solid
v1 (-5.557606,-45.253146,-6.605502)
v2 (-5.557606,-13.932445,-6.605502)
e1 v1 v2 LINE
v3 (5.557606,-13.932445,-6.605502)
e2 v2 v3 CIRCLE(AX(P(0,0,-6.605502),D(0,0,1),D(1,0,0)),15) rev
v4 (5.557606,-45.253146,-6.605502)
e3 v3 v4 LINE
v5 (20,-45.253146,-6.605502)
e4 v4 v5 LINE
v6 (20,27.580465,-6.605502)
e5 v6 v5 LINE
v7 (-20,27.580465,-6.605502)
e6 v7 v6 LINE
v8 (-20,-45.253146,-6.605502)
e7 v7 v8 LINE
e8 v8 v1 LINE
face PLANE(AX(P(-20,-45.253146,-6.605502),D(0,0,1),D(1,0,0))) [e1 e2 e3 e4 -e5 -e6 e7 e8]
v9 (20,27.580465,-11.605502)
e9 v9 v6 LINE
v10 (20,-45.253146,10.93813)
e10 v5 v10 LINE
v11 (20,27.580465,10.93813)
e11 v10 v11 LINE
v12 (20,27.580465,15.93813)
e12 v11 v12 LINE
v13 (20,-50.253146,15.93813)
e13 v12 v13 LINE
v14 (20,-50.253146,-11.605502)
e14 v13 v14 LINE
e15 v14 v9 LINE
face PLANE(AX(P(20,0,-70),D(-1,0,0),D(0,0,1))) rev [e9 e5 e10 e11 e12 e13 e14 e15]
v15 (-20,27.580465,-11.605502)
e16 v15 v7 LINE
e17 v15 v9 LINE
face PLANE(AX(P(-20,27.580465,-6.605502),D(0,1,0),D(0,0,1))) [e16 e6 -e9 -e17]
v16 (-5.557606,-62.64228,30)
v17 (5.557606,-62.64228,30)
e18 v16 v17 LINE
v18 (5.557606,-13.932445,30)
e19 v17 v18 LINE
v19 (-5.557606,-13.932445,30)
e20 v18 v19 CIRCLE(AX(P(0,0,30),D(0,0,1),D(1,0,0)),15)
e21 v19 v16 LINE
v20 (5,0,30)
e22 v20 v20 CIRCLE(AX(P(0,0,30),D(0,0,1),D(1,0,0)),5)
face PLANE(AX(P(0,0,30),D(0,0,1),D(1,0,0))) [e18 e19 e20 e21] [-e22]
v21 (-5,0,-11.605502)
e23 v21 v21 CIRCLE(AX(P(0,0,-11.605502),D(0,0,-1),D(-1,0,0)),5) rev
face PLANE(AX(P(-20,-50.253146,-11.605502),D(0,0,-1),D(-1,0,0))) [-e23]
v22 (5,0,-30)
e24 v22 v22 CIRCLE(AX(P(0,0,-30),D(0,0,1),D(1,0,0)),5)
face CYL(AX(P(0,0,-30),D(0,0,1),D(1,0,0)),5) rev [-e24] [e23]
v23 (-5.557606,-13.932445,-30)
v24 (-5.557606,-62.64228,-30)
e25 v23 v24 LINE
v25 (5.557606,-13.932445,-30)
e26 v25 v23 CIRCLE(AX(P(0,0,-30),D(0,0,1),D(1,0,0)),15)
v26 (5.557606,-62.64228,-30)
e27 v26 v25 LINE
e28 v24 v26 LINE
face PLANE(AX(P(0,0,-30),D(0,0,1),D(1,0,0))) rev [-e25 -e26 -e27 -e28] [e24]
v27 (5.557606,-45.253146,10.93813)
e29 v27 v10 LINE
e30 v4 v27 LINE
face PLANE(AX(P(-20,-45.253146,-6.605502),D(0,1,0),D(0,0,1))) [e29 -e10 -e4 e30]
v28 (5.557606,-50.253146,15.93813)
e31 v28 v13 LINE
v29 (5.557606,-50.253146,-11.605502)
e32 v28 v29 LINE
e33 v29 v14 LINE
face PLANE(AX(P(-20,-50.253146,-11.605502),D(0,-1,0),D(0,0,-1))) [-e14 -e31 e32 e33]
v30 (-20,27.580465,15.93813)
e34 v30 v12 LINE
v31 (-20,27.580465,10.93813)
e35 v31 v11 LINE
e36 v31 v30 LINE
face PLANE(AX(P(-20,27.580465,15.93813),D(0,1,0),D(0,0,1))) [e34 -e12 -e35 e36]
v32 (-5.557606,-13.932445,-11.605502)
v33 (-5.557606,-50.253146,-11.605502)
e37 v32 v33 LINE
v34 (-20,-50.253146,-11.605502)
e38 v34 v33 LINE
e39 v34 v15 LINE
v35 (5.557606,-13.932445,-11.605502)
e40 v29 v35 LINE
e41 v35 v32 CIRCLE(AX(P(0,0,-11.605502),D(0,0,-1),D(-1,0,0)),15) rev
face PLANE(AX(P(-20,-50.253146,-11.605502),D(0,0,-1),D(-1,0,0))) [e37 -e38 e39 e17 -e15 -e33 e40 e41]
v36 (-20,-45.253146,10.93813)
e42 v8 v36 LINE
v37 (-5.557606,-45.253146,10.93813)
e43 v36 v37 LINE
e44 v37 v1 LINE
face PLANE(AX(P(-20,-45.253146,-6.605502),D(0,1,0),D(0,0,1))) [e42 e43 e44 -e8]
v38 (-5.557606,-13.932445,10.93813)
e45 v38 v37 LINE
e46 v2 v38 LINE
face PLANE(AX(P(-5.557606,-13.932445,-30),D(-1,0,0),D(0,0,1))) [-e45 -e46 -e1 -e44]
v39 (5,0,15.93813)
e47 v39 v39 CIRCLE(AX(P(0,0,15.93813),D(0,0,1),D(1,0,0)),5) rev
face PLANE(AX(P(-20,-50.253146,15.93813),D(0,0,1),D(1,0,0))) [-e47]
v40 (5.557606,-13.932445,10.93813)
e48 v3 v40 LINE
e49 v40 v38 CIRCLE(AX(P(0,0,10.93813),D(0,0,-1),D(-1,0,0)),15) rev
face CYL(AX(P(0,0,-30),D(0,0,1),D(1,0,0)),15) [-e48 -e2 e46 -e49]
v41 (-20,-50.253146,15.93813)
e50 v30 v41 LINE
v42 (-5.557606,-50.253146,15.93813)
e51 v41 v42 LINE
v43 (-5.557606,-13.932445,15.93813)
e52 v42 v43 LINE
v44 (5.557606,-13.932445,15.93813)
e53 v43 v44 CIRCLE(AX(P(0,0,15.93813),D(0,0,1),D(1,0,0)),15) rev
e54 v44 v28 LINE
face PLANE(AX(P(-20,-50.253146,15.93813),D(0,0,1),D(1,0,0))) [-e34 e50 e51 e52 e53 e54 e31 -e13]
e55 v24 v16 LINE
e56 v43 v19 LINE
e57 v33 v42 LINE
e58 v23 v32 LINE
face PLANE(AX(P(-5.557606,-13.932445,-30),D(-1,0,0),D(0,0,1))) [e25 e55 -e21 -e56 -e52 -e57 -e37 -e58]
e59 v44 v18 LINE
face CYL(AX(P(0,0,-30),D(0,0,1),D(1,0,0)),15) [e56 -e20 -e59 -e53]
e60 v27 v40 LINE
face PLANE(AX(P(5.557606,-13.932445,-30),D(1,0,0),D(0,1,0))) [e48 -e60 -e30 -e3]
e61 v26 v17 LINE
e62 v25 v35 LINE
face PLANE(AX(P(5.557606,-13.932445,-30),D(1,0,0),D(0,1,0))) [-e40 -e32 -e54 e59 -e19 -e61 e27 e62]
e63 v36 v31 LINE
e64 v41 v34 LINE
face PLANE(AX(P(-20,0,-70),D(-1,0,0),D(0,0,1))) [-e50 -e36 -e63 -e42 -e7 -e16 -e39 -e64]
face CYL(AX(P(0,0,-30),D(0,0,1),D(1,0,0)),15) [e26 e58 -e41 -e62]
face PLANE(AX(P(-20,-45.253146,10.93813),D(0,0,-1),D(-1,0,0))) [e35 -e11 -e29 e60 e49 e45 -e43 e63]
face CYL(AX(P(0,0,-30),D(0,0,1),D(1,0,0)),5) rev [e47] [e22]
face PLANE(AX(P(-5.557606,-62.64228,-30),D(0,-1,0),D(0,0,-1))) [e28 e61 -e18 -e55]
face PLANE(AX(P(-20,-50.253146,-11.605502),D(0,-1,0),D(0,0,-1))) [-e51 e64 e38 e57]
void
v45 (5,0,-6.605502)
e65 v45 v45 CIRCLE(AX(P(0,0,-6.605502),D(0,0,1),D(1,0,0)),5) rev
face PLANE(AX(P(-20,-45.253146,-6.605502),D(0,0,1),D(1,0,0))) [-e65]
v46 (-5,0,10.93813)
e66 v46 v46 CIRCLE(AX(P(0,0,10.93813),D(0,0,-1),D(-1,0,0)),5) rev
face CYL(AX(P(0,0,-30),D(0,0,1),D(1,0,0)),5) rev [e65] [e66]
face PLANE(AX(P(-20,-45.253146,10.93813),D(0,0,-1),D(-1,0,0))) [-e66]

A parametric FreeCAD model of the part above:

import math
import FreeCAD as App
import Part
import Sketcher

V = App.Vector

doc = App.newDocument("Part")
body = doc.addObject("PartDesign::Body", "Body")

# Sketch on XY plane
sketch1 = body.newObject("Sketcher::SketchObject", "Sketch")
sketch1.AttachmentSupport = (doc.getObject("XY_Plane"), [""])
sketch1.MapMode = "FlatFace"
sketch1.addGeometry([
    Part.LineSegment(V(-6, -14, 0), V(-6, -63, 0)),  # 0
    Part.LineSegment(V(-6, -63, 0), V(6, -63, 0)),  # 1
    Part.LineSegment(V(6, -63, 0), V(6, -14, 0)),  # 2
    Part.ArcOfCircle(Part.Circle(V(0, 0, 0), V(0, 0, 1), 15), math.radians(-68), math.radians(248)),  # 3
    Part.Circle(V(0, 0, 0), V(0, 0, 1), 5),  # 4
], False)
sketch1.addConstraint([
    Sketcher.Constraint("Coincident", 0, 2, 1, 1),
    Sketcher.Constraint("Coincident", 1, 2, 2, 1),
    Sketcher.Constraint("Coincident", 2, 2, 3, 1),
    Sketcher.Constraint("Coincident", 3, 2, 0, 1),
    Sketcher.Constraint("Vertical", 0),
    Sketcher.Constraint("Horizontal", 1),
    Sketcher.Constraint("Vertical", 2),
    Sketcher.Constraint("Coincident", 3, 3, -1, 1),
    Sketcher.Constraint("Coincident", 4, 3, -1, 1),
    Sketcher.Constraint("Horizontal", 2, 2, 3, 2),
    Sketcher.Constraint("Diameter", 4, 10.0),
    Sketcher.Constraint("Radius", 3, 15.0),
    Sketcher.Constraint("DistanceX", 1, 1, 1, 2, 11.115213),
    Sketcher.Constraint("DistanceY", 0, 2, 0, 1, 48.709835),
])
pad1 = body.newObject("PartDesign::Pad", "Pad")
pad1.Profile = sketch1
pad1.Type = "TwoLengths"
pad1.Length = 30
pad1.Length2 = 30
body2 = doc.addObject("PartDesign::Body", "Body001")

# Sketch on YZ plane
sketch2 = body2.newObject("Sketcher::SketchObject", "Sketch001")
sketch2.AttachmentSupport = (doc.getObject("YZ_Plane001"), [""])
sketch2.MapMode = "FlatFace"
sketch2.addGeometry([
    Part.LineSegment(V(-50, 86, 0), V(-50, 58, 0)),  # 0
    Part.LineSegment(V(-50, 58, 0), V(28, 58, 0)),  # 1
    Part.LineSegment(V(28, 58, 0), V(28, 63, 0)),  # 2
    Part.LineSegment(V(28, 63, 0), V(-45, 63, 0)),  # 3
    Part.LineSegment(V(-45, 63, 0), V(-45, 81, 0)),  # 4
    Part.LineSegment(V(-45, 81, 0), V(28, 81, 0)),  # 5
    Part.LineSegment(V(28, 81, 0), V(28, 86, 0)),  # 6
    Part.LineSegment(V(28, 86, 0), V(-50, 86, 0)),  # 7
], False)
sketch2.addConstraint([
    Sketcher.Constraint("Coincident", 0, 2, 1, 1),
    Sketcher.Constraint("Coincident", 1, 2, 2, 1),
    Sketcher.Constraint("Coincident", 2, 2, 3, 1),
    Sketcher.Constraint("Coincident", 3, 2, 4, 1),
    Sketcher.Constraint("Coincident", 4, 2, 5, 1),
    Sketcher.Constraint("Coincident", 5, 2, 6, 1),
    Sketcher.Constraint("Coincident", 6, 2, 7, 1),
    Sketcher.Constraint("Coincident", 7, 2, 0, 1),
    Sketcher.Constraint("Vertical", 0),
    Sketcher.Constraint("Horizontal", 1),
    Sketcher.Constraint("Vertical", 2),
    Sketcher.Constraint("Horizontal", 3),
    Sketcher.Constraint("Vertical", 4),
    Sketcher.Constraint("Horizontal", 5),
    Sketcher.Constraint("Vertical", 6),
    Sketcher.Constraint("Horizontal", 7),
    Sketcher.Constraint("Vertical", 2, 2, 5, 2),
    Sketcher.Constraint("Equal", 2, 6),
    Sketcher.Constraint("DistanceY", 2, 1, 2, 2, 5.0),
    Sketcher.Constraint("DistanceX", 0, 2, 3, 2, 5.0),
    Sketcher.Constraint("DistanceX", 1, 1, 1, 2, 77.833611),
    Sketcher.Constraint("DistanceY", -1, 1, 0, 2, 58.394498),
    Sketcher.Constraint("DistanceY", 0, 2, 0, 1, 27.543632),
    Sketcher.Constraint("DistanceX", 0, 2, -1, 1, 50.253146),
])
pad2 = body2.newObject("PartDesign::Pad", "Pad001")
pad2.Profile = sketch2
pad2.Type = "TwoLengths"
pad2.Length = 20
pad2.Length2 = 20
body3 = doc.addObject("PartDesign::Body", "Body002")
doc.recompute()

body2.Placement = App.Placement(V(0, 0, -70), App.Rotation(V(0, 0, 1), 0))
boolean = body3.newObject("PartDesign::Boolean", "Boolean")
boolean.Type = "Fuse"
boolean.addObjects([body2])
doc.recompute()

boolean2 = body.newObject("PartDesign::Boolean", "Boolean001")
boolean2.Type = "Fuse"
boolean2.addObjects([body3])

doc.recompute()
